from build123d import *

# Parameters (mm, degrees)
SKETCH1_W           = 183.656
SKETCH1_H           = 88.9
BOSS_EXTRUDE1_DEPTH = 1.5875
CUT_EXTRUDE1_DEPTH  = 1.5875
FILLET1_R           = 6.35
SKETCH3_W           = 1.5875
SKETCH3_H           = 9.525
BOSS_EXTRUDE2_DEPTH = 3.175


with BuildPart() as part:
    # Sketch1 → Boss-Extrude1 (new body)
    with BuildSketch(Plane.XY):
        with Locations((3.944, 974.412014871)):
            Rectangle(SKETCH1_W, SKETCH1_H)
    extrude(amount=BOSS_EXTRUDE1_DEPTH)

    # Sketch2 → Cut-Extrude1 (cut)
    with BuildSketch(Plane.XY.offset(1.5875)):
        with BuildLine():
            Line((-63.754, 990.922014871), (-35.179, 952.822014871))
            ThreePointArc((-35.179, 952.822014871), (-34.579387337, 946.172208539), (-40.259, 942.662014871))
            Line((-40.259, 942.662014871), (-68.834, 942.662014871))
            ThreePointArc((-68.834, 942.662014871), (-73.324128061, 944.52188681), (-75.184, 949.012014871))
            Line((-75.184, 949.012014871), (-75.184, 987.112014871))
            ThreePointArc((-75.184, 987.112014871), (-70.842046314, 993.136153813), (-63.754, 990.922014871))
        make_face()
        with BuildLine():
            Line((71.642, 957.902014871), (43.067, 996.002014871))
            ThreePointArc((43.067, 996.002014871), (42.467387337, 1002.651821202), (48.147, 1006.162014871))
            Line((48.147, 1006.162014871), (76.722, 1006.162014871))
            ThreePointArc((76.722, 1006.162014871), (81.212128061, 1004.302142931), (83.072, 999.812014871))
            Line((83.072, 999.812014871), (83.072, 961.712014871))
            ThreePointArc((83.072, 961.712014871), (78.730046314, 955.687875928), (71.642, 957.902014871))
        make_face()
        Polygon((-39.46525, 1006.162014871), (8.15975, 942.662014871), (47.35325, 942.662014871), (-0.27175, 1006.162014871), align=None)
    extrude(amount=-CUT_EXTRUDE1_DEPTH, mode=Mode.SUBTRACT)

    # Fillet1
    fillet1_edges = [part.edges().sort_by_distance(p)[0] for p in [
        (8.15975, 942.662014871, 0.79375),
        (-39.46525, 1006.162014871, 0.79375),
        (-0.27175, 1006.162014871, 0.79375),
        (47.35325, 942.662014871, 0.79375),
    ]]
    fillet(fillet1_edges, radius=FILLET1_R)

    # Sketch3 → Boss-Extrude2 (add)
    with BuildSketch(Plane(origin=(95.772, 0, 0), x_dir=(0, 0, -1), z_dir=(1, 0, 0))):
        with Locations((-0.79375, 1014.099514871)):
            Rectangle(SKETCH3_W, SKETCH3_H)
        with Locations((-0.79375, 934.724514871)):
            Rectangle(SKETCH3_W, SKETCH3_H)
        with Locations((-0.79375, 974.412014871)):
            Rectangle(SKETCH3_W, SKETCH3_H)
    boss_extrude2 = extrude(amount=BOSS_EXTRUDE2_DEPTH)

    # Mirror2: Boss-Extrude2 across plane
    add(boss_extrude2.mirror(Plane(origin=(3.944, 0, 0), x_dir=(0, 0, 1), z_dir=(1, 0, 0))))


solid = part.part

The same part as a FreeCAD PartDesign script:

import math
import FreeCAD as App
import Part
import Sketcher

V = App.Vector
Q = App.Units.Quantity


def edges_at(feature, points):
    """Names of the edges that pass closest to the given points."""
    edges = feature.Shape.Edges
    near = lambda p: min(range(len(edges)), key=lambda i: edges[i].distToShape(Part.Vertex(*p))[0])
    return sorted({f"Edge{near(p) + 1}" for p in points})

doc = App.newDocument("Part")
body = doc.addObject("PartDesign::Body", "Body")

sketch1 = body.newObject("Sketcher::SketchObject", "Sketch")
sketch1.AttachmentSupport = (doc.getObject("XY_Plane"), [""])
sketch1.MapMode = "FlatFace"
sketch1.addGeometry(Part.LineSegment(V(-88, 1019, 0), V(-88, 930, 0)), False)
sketch1.addGeometry(Part.LineSegment(V(-88, 930, 0), V(96, 930, 0)), False)
sketch1.addGeometry(Part.LineSegment(V(96, 930, 0), V(96, 1019, 0)), False)
sketch1.addGeometry(Part.LineSegment(V(96, 1019, 0), V(-88, 1019, 0)), False)
sketch1.addConstraint(Sketcher.Constraint("Coincident", 0, 2, 1, 1))
sketch1.addConstraint(Sketcher.Constraint("Coincident", 1, 2, 2, 1))
sketch1.addConstraint(Sketcher.Constraint("Coincident", 2, 2, 3, 1))
sketch1.addConstraint(Sketcher.Constraint("Coincident", 3, 2, 0, 1))
sketch1.addConstraint(Sketcher.Constraint("Vertical", 0))
sketch1.addConstraint(Sketcher.Constraint("Horizontal", 1))
sketch1.addConstraint(Sketcher.Constraint("Vertical", 2))
sketch1.addConstraint(Sketcher.Constraint("Horizontal", 3))
sketch1.addConstraint(Sketcher.Constraint("DistanceY", 0, 2, 0, 1, Q("3.5 in")))
sketch1.addConstraint(Sketcher.Constraint("DistanceX", 0, 2, -1, 1, Q("3.46 in")))
sketch1.addConstraint(Sketcher.Constraint("DistanceX", 1, 1, 1, 2, 183.656))
sketch1.addConstraint(Sketcher.Constraint("DistanceY", -1, 1, 0, 2, 929.962015))
pad1 = body.newObject("PartDesign::Pad", "Pad")
pad1.Profile = sketch1
pad1.Length = Q("0.0625 in")

sketch2 = body.newObject("Sketcher::SketchObject", "Sketch001")
sketch2.AttachmentSupport = (doc.getObject("XY_Plane"), [""])
sketch2.MapMode = "FlatFace"
sketch2.AttachmentOffset = App.Placement(V(0, 0, 0.0625 * 25.4), App.Rotation())
sketch2.addGeometry(Part.LineSegment(V(-35, 953, 0), V(-64, 991, 0)), False)
sketch2.addGeometry(Part.ArcOfCircle(Part.Circle(V(-69, 987, 0), V(0, 0, 1), 6), math.radians(37), math.radians(180)), False)
sketch2.addGeometry(Part.LineSegment(V(-75, 987, 0), V(-75, 949, 0)), False)
sketch2.addGeometry(Part.ArcOfCircle(Part.Circle(V(-69, 949, 0), V(0, 0, 1), 6), math.radians(180), math.radians(270)), False)
sketch2.addGeometry(Part.LineSegment(V(-69, 943, 0), V(-40, 943, 0)), False)
sketch2.addGeometry(Part.ArcOfCircle(Part.Circle(V(-40, 949, 0), V(0, 0, 1), 6), math.radians(-90), math.radians(37)), False)
sketch2.addGeometry(Part.LineSegment(V(43, 996, 0), V(72, 958, 0)), False)
sketch2.addGeometry(Part.ArcOfCircle(Part.Circle(V(77, 962, 0), V(0, 0, 1), 6), math.radians(-143), math.radians(0)), False)
sketch2.addGeometry(Part.LineSegment(V(83, 962, 0), V(83, 1000, 0)), False)
sketch2.addGeometry(Part.ArcOfCircle(Part.Circle(V(77, 1000, 0), V(0, 0, 1), 6), math.radians(0), math.radians(90)), False)
sketch2.addGeometry(Part.LineSegment(V(77, 1006, 0), V(48, 1006, 0)), False)
sketch2.addGeometry(Part.ArcOfCircle(Part.Circle(V(48, 1000, 0), V(0, 0, 1), 6), math.radians(90), math.radians(217)), False)
sketch2.addGeometry(Part.LineSegment(V(-39, 1006, 0), V(8, 943, 0)), False)
sketch2.addGeometry(Part.LineSegment(V(8, 943, 0), V(47, 943, 0)), False)
sketch2.addGeometry(Part.LineSegment(V(47, 943, 0), V(0, 1006, 0)), False)
sketch2.addGeometry(Part.LineSegment(V(0, 1006, 0), V(-39, 1006, 0)), False)
sketch2.addConstraint(Sketcher.Constraint("Tangent", 0, 2, 1, 1))
sketch2.addConstraint(Sketcher.Constraint("Tangent", 1, 2, 2, 1))
sketch2.addConstraint(Sketcher.Constraint("Tangent", 2, 2, 3, 1))
sketch2.addConstraint(Sketcher.Constraint("Tangent", 3, 2, 4, 1))
sketch2.addConstraint(Sketcher.Constraint("Tangent", 4, 2, 5, 1))
sketch2.addConstraint(Sketcher.Constraint("Tangent", 5, 2, 0, 1))
sketch2.addConstraint(Sketcher.Constraint("Tangent", 6, 2, 7, 1))
sketch2.addConstraint(Sketcher.Constraint("Tangent", 7, 2, 8, 1))
sketch2.addConstraint(Sketcher.Constraint("Tangent", 8, 2, 9, 1))
sketch2.addConstraint(Sketcher.Constraint("Tangent", 9, 2, 10, 1))
sketch2.addConstraint(Sketcher.Constraint("Tangent", 10, 2, 11, 1))
sketch2.addConstraint(Sketcher.Constraint("Tangent", 11, 2, 6, 1))
sketch2.addConstraint(Sketcher.Constraint("Coincident", 12, 2, 13, 1))
sketch2.addConstraint(Sketcher.Constraint("Coincident", 13, 2, 14, 1))
sketch2.addConstraint(Sketcher.Constraint("Coincident", 14, 2, 15, 1))
sketch2.addConstraint(Sketcher.Constraint("Coincident", 15, 2, 12, 1))
sketch2.addConstraint(Sketcher.Constraint("Vertical", 2))
sketch2.addConstraint(Sketcher.Constraint("Horizontal", 4))
sketch2.addConstraint(Sketcher.Constraint("Vertical", 8))
sketch2.addConstraint(Sketcher.Constraint("Horizontal", 10))
sketch2.addConstraint(Sketcher.Constraint("Horizontal", 13))
sketch2.addConstraint(Sketcher.Constraint("Horizontal", 15))
sketch2.addConstraint(Sketcher.Constraint("Equal", 1, 3))
sketch2.addConstraint(Sketcher.Constraint("Equal", 3, 5))
sketch2.addConstraint(Sketcher.Constraint("Equal", 5, 7))
sketch2.addConstraint(Sketcher.Constraint("Equal", 7, 9))
sketch2.addConstraint(Sketcher.Constraint("Equal", 9, 11))
sketch2.addConstraint(Sketcher.Constraint("Parallel", 0, 6))
sketch2.addConstraint(Sketcher.Constraint("Parallel", 6, 12))
sketch2.addConstraint(Sketcher.Constraint("Parallel", 12, 14))
sketch2.addConstraint(Sketcher.Constraint("Horizontal", 4, 2, 12, 2))
sketch2.addConstraint(Sketcher.Constraint("Horizontal", 10, 2, 14, 2))
sketch2.addConstraint(Sketcher.Constraint("Equal", 4, 10))
sketch2.addConstraint(Sketcher.Constraint("Radius", 1, Q("0.25 in")))
sketch2.addConstraint(Sketcher.Constraint("DistanceY", 2, 2, 2, 1, Q("1.5 in")))
sketch2.addConstraint(Sketcher.Constraint("DistanceY", 7, 3, 1, 3, Q("1 in")))
sketch2.addConstraint(Sketcher.Constraint("DistanceX", 1, 3, 0, 2, Q("0.2 in")))
sketch2.addConstraint(Sketcher.Constraint("DistanceX", 1, 3, -1, 1, Q("2.71 in")))
sketch2.addConstraint(Sketcher.Constraint("DistanceX", 4, 2, 12, 2, Q("1.90625 in")))
sketch2.addConstraint(Sketcher.Constraint("DistanceX", 13, 2, 7, 3, Q("1.15625 in")))
sketch2.addConstraint(Sketcher.Constraint("DistanceX", 13, 1, 13, 2, 39.1935))
sketch2.addConstraint(Sketcher.Constraint("DistanceY", -1, 1, 1, 3, 987.112015))
pocket1 = body.newObject("PartDesign::Pocket", "Pocket")
pocket1.Profile = sketch2
pocket1.Length = Q("0.0625 in")
doc.recompute()

fillet = body.newObject("PartDesign::Fillet", "Fillet")
fillet.Base = (pocket1, edges_at(pocket1, [
    (8.16, 942.662, 0.794),
    (-39.465, 1006.162, 0.794),
    (-0.272, 1006.162, 0.794),
    (47.353, 942.662, 0.794),
]))
fillet.Radius = Q("0.25 in")

sketch3 = body.newObject("Sketcher::SketchObject", "Sketch002")
sketch3.AttachmentSupport = (doc.getObject("YZ_Plane"), [""])
sketch3.MapMode = "FlatFace"
sketch3.AttachmentOffset = App.Placement(V(0, 0, 95.772), App.Rotation())
sketch3.addGeometry(Part.LineSegment(V(1018.9, 1.6, 0), V(1009.3, 1.6, 0)), False)
sketch3.addGeometry(Part.LineSegment(V(1009.3, 1.6, 0), V(1009.3, 0, 0)), False)
sketch3.addGeometry(Part.LineSegment(V(1009.3, 0, 0), V(1018.9, 0, 0)), False)
sketch3.addGeometry(Part.LineSegment(V(1018.9, 0, 0), V(1018.9, 1.6, 0)), False)
sketch3.addGeometry(Part.LineSegment(V(939.5, 1.6, 0), V(930, 1.6, 0)), False)
sketch3.addGeometry(Part.LineSegment(V(930, 1.6, 0), V(930, 0, 0)), False)
sketch3.addGeometry(Part.LineSegment(V(930, 0, 0), V(939.5, 0, 0)), False)
sketch3.addGeometry(Part.LineSegment(V(939.5, 0, 0), V(939.5, 1.6, 0)), False)
sketch3.addGeometry(Part.LineSegment(V(979.2, 1.6, 0), V(969.6, 1.6, 0)), False)
sketch3.addGeometry(Part.LineSegment(V(969.6, 1.6, 0), V(969.6, 0, 0)), False)
sketch3.addGeometry(Part.LineSegment(V(969.6, 0, 0), V(979.2, 0, 0)), False)
sketch3.addGeometry(Part.LineSegment(V(979.2, 0, 0), V(979.2, 1.6, 0)), False)
sketch3.addConstraint(Sketcher.Constraint("Coincident", 0, 2, 1, 1))
sketch3.addConstraint(Sketcher.Constraint("Coincident", 1, 2, 2, 1))
sketch3.addConstraint(Sketcher.Constraint("Coincident", 2, 2, 3, 1))
sketch3.addConstraint(Sketcher.Constraint("Coincident", 3, 2, 0, 1))
sketch3.addConstraint(Sketcher.Constraint("Coincident", 4, 2, 5, 1))
sketch3.addConstraint(Sketcher.Constraint("Coincident", 5, 2, 6, 1))
sketch3.addConstraint(Sketcher.Constraint("Coincident", 6, 2, 7, 1))
sketch3.addConstraint(Sketcher.Constraint("Coincident", 7, 2, 4, 1))
sketch3.addConstraint(Sketcher.Constraint("Coincident", 8, 2, 9, 1))
sketch3.addConstraint(Sketcher.Constraint("Coincident", 9, 2, 10, 1))
sketch3.addConstraint(Sketcher.Constraint("Coincident", 10, 2, 11, 1))
sketch3.addConstraint(Sketcher.Constraint("Coincident", 11, 2, 8, 1))
sketch3.addConstraint(Sketcher.Constraint("Horizontal", 0))
sketch3.addConstraint(Sketcher.Constraint("Vertical", 1))
sketch3.addConstraint(Sketcher.Constraint("Horizontal", 2))
sketch3.addConstraint(Sketcher.Constraint("Vertical", 3))
sketch3.addConstraint(Sketcher.Constraint("Horizontal", 4))
sketch3.addConstraint(Sketcher.Constraint("Vertical", 5))
sketch3.addConstraint(Sketcher.Constraint("Horizontal", 6))
sketch3.addConstraint(Sketcher.Constraint("Vertical", 7))
sketch3.addConstraint(Sketcher.Constraint("Horizontal", 8))
sketch3.addConstraint(Sketcher.Constraint("Vertical", 9))
sketch3.addConstraint(Sketcher.Constraint("Horizontal", 10))
sketch3.addConstraint(Sketcher.Constraint("Vertical", 11))
sketch3.addConstraint(Sketcher.Constraint("PointOnObject", 1, 2, -1))
sketch3.addConstraint(Sketcher.Constraint("PointOnObject", 5, 2, -1))
sketch3.addConstraint(Sketcher.Constraint("PointOnObject", 9, 2, -1))
sketch3.addConstraint(Sketcher.Constraint("Horizontal", 3, 2, 4, 2))
sketch3.addConstraint(Sketcher.Constraint("Horizontal", 7, 2, 8, 2))
sketch3.addConstraint(Sketcher.Constraint("Equal", 2, 4))
sketch3.addConstraint(Sketcher.Constraint("Equal", 6, 8))
sketch3.addConstraint(Sketcher.Constraint("DistanceX", 4, 2, 3, 2, Q("3.5 in")))
sketch3.addConstraint(Sketcher.Constraint("DistanceX", 0, 2, 0, 1, Q("0.375 in")))
sketch3.addConstraint(Sketcher.Constraint("DistanceY", 1, 2, 1, 1, Q("0.0625 in")))
sketch3.addConstraint(Sketcher.Constraint("DistanceX", 7, 2, 8, 2, Q("1.1875 in")))
sketch3.addConstraint(Sketcher.Constraint("DistanceX", -1, 1, 0, 2, 1009.337015))
pad2 = body.newObject("PartDesign::Pad", "Pad001")
pad2.Profile = sketch3
pad2.Length = Q("0.125 in")
doc.recompute()

datumplane = body.newObject("PartDesign::Plane", "DatumPlane")
datumplane.AttachmentSupport = (doc.getObject("YZ_Plane"), [""])
datumplane.MapMode = "FlatFace"
datumplane.AttachmentOffset = App.Placement(V(0, 0, 3.944), App.Rotation())
mirrored = body.newObject("PartDesign::Mirrored", "Mirrored")
mirrored.Originals = [pad2]
mirrored.MirrorPlane = (datumplane, [""])
body.Tip = mirrored

doc.recompute()
